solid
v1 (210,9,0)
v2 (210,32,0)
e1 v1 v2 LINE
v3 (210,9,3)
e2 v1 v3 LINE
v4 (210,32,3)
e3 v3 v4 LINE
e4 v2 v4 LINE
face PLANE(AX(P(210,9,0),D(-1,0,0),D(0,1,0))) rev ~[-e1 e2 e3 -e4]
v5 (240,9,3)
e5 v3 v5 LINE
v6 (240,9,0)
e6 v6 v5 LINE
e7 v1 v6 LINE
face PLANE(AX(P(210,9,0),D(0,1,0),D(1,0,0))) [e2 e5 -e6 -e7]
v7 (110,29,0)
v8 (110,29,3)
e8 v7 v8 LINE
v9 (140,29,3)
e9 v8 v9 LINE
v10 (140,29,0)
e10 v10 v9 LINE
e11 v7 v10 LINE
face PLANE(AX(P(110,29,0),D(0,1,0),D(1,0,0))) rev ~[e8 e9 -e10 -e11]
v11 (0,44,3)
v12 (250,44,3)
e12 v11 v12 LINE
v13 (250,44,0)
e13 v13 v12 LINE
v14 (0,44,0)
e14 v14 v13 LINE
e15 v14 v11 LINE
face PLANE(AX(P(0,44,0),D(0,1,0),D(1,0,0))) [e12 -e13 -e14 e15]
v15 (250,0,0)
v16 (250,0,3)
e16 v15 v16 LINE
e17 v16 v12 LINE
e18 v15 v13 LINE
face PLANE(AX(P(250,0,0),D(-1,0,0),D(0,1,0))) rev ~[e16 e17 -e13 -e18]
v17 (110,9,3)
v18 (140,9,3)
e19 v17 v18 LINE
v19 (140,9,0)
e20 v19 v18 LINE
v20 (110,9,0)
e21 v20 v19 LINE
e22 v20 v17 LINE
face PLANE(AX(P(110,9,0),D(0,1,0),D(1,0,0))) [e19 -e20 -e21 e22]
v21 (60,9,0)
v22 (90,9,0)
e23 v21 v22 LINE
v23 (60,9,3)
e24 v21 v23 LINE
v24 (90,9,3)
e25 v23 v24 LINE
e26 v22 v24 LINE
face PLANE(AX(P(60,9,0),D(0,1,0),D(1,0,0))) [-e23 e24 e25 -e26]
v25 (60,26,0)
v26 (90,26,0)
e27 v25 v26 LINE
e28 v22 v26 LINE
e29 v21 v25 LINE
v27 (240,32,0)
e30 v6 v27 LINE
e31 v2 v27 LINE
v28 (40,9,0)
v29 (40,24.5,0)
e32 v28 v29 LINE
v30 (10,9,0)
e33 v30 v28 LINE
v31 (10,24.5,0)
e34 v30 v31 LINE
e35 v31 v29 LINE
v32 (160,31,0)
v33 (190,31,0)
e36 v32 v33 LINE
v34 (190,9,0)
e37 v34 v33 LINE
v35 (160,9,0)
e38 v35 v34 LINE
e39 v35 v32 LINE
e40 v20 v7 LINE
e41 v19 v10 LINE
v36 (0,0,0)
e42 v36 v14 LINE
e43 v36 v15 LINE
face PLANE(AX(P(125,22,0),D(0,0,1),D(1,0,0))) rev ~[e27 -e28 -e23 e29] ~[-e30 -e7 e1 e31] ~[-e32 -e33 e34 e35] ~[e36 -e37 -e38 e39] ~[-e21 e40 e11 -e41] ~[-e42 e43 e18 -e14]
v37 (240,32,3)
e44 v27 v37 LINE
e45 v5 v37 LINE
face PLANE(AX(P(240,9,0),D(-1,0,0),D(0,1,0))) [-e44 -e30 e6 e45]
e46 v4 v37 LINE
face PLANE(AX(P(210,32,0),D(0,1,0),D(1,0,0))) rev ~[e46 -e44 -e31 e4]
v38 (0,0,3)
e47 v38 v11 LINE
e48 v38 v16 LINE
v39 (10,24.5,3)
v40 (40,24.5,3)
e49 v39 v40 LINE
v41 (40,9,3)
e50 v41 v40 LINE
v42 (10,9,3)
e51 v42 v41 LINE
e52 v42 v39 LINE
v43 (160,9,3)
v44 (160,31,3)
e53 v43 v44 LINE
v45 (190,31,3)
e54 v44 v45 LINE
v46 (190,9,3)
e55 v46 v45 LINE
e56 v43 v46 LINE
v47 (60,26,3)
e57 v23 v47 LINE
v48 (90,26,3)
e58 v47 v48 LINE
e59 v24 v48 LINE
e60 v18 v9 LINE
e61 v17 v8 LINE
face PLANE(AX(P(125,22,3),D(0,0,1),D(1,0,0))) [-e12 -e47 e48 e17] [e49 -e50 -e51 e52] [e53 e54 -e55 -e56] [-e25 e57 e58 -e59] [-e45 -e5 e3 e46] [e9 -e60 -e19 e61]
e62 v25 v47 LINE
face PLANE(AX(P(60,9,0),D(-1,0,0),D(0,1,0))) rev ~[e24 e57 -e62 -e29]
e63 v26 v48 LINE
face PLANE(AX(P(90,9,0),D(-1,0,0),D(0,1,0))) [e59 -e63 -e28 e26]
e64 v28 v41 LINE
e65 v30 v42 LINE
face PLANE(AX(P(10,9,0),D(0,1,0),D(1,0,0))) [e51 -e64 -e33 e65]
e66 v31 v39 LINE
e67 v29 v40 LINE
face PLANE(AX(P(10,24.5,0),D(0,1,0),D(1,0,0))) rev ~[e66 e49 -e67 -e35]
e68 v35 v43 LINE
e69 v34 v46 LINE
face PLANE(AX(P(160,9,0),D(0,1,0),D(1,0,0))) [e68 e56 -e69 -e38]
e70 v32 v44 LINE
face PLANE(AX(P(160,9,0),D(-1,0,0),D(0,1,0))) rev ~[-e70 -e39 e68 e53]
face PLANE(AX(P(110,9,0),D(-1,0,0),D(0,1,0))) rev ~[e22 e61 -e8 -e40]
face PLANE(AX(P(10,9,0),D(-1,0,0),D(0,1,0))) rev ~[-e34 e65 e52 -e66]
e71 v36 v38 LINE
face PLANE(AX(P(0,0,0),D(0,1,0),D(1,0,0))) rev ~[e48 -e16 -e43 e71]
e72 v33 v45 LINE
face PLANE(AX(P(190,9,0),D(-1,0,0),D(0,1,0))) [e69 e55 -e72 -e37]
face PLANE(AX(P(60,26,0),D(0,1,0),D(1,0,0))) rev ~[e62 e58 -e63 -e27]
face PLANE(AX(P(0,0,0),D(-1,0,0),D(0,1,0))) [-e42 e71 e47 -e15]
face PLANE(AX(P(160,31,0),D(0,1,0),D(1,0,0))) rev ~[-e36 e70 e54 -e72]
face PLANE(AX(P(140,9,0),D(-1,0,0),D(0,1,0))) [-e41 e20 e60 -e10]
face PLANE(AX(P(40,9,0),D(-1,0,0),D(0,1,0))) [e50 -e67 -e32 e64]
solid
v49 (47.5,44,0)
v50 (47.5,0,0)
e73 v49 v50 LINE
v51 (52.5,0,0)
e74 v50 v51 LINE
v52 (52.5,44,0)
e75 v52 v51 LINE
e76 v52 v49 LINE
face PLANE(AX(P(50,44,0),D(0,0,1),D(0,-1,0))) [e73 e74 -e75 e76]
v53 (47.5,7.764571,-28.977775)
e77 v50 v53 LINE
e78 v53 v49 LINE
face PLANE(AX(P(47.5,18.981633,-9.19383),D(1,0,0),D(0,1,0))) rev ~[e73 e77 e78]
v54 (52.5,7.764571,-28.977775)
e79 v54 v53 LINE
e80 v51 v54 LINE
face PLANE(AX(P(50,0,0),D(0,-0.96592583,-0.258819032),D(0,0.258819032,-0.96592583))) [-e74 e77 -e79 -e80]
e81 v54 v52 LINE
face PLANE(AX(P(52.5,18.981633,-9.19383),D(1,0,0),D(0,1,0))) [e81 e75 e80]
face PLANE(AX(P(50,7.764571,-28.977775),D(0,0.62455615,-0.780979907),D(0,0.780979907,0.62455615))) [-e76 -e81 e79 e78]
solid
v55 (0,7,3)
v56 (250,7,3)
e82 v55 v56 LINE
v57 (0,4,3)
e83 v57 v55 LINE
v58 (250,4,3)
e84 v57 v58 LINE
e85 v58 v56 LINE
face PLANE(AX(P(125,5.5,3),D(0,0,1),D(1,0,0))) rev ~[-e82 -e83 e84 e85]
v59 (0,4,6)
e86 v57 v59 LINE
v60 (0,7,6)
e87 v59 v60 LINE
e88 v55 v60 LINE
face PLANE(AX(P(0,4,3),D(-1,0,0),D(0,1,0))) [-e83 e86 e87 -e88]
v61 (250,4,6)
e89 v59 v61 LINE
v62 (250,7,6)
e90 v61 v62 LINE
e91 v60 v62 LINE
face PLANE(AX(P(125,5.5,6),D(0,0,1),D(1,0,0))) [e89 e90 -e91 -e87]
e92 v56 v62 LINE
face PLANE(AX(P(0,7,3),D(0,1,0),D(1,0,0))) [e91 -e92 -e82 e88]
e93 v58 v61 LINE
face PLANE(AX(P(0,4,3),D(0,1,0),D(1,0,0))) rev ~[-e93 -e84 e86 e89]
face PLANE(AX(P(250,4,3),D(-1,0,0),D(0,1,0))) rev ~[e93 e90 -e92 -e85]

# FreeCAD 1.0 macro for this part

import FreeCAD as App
import Part
import Sketcher

V = App.Vector
Q = App.Units.Quantity


def add_polygon(sketch, points):
    """Adds a closed chain of lines whose ends are joined by coincident constraints."""
    first, n = sketch.GeometryCount, len(points)
    for a, b in zip(points, points[1:] + points[:1]):
        sketch.addGeometry(Part.LineSegment(App.Vector(*a, 0), App.Vector(*b, 0)), False)
    for i in range(n):
        sketch.addConstraint(Sketcher.Constraint("Coincident", first + i, 2, first + (i + 1) % n, 1))

doc = App.newDocument("Part")
body = doc.addObject("PartDesign::Body", "Body")

# Sketch on XY plane
sketch1 = body.newObject("Sketcher::SketchObject", "Sketch")
sketch1.AttachmentSupport = (doc.getObject("XY_Plane"), [""])
sketch1.MapMode = "FlatFace"
add_polygon(sketch1, [(0, 44), (0, 0), (250, 0), (250, 44)])  # lines 0-3
add_polygon(sketch1, [(40, 9), (10, 9), (10, 24), (40, 24)])  # lines 4-7
add_polygon(sketch1, [(90, 9), (60, 9), (60, 26), (90, 26)])  # lines 8-11
add_polygon(sketch1, [(140, 9), (110, 9), (110, 29), (140, 29)])  # lines 12-15
add_polygon(sketch1, [(190, 9), (160, 9), (160, 31), (190, 31)])  # lines 16-19
add_polygon(sketch1, [(240, 9), (210, 9), (210, 32), (240, 32)])  # lines 20-23
sketch1.addConstraint([
    Sketcher.Constraint("Vertical", 0),
    Sketcher.Constraint("Horizontal", 1),
    Sketcher.Constraint("Vertical", 2),
    Sketcher.Constraint("Horizontal", 3),
    Sketcher.Constraint("Horizontal", 4),
    Sketcher.Constraint("Vertical", 5),
    Sketcher.Constraint("Horizontal", 6),
    Sketcher.Constraint("Vertical", 7),
    Sketcher.Constraint("Horizontal", 8),
    Sketcher.Constraint("Vertical", 9),
    Sketcher.Constraint("Horizontal", 10),
    Sketcher.Constraint("Vertical", 11),
    Sketcher.Constraint("Horizontal", 12),
    Sketcher.Constraint("Vertical", 13),
    Sketcher.Constraint("Horizontal", 14),
    Sketcher.Constraint("Vertical", 15),
    Sketcher.Constraint("Horizontal", 16),
    Sketcher.Constraint("Vertical", 17),
    Sketcher.Constraint("Horizontal", 18),
    Sketcher.Constraint("Vertical", 19),
    Sketcher.Constraint("Horizontal", 20),
    Sketcher.Constraint("Vertical", 21),
    Sketcher.Constraint("Horizontal", 22),
    Sketcher.Constraint("Vertical", 23),
    Sketcher.Constraint("Coincident", 0, 2, -1, 1),
    Sketcher.Constraint("Horizontal", 7, 2, 8, 2),
    Sketcher.Constraint("Horizontal", 11, 2, 12, 2),
    Sketcher.Constraint("Horizontal", 15, 2, 16, 2),
    Sketcher.Constraint("Horizontal", 19, 2, 20, 2),
    Sketcher.Constraint("Equal", 6, 8),
    Sketcher.Constraint("Equal", 10, 12),
    Sketcher.Constraint("Equal", 14, 16),
    Sketcher.Constraint("Equal", 18, 20),
    Sketcher.Constraint("DistanceX", 1, 1, 1, 2, Q("250 mm")),
    Sketcher.Constraint("DistanceX", 4, 2, 4, 1, Q("30 mm")),
    Sketcher.Constraint("DistanceY", 0, 2, 0, 1, Q("44 mm")),
    Sketcher.Constraint("DistanceY", 9, 1, 9, 2, Q("17 mm")),
    Sketcher.Constraint("DistanceY", 13, 1, 13, 2, Q("20 mm")),
    Sketcher.Constraint("DistanceY", 17, 1, 17, 2, Q("22 mm")),
    Sketcher.Constraint("DistanceY", 21, 1, 21, 2, Q("23 mm")),
    Sketcher.Constraint("DistanceY", 5, 1, 5, 2, Q("15.5 mm")),
    Sketcher.Constraint("DistanceX", -1, 1, 4, 2, Q("10 mm")),
    Sketcher.Constraint("DistanceY", -1, 1, 4, 2, Q("9 mm")),
    Sketcher.Constraint("DistanceX", -1, 1, 8, 2, Q("60 mm")),
    Sketcher.Constraint("DistanceX", -1, 1, 12, 2, Q("110 mm")),
    Sketcher.Constraint("DistanceX", -1, 1, 16, 2, Q("160 mm")),
    Sketcher.Constraint("DistanceX", -1, 1, 20, 2, Q("210 mm")),
])
pad1 = body.newObject("PartDesign::Pad", "Pad")
pad1.Profile = sketch1
pad1.Length = 3
body2 = doc.addObject("PartDesign::Body", "Body001")

# Sketch on XY plane
sketch2 = body2.newObject("Sketcher::SketchObject", "Sketch001")
sketch2.AttachmentSupport = (doc.getObject("XY_Plane001"), [""])
sketch2.MapMode = "FlatFace"
sketch2.AttachmentOffset = App.Placement(V(0, 0, 3), App.Rotation())
add_polygon(sketch2, [(0, 7), (0, 4), (250, 4), (250, 7)])  # lines 0-3
sketch2.addConstraint([
    Sketcher.Constraint("Vertical", 0),
    Sketcher.Constraint("Horizontal", 1),
    Sketcher.Constraint("Vertical", 2),
    Sketcher.Constraint("Horizontal", 3),
    Sketcher.Constraint("PointOnObject", 0, 2, -2),
    Sketcher.Constraint("DistanceX", 1, 1, 1, 2, Q("250 mm")),
    Sketcher.Constraint("DistanceY", 0, 2, 0, 1, Q("3 mm")),
    Sketcher.Constraint("DistanceY", -1, 1, 0, 2, Q("4 mm")),
])
pad2 = body2.newObject("PartDesign::Pad", "Pad001")
pad2.Profile = sketch2
pad2.Length = 3
body3 = doc.addObject("PartDesign::Body", "Body002")

# Sketch on YZ plane
sketch3 = body3.newObject("Sketcher::SketchObject", "Sketch002")
sketch3.AttachmentSupport = (doc.getObject("YZ_Plane002"), [""])
sketch3.MapMode = "FlatFace"
sketch3.AttachmentOffset = App.Placement(V(0, 0, 50), App.Rotation())
add_polygon(sketch3, [(44, 0), (0, 0), (8, -29)])  # lines 0-2
sketch3.addConstraint([
    Sketcher.Constraint("Horizontal", 0),
    Sketcher.Constraint("Coincident", 0, 2, -1, 1),
    Sketcher.Constraint("DistanceX", 0, 2, 0, 1, Q("44 mm")),
    Sketcher.Constraint("Angle", 1, Q("-75.000001 deg")),
    Sketcher.Constraint("Distance", 1, Q("30 mm")),
])
pad3 = body3.newObject("PartDesign::Pad", "Pad002")
pad3.Profile = sketch3
pad3.Length = 5
pad3.Midplane = True

doc.recompute()
